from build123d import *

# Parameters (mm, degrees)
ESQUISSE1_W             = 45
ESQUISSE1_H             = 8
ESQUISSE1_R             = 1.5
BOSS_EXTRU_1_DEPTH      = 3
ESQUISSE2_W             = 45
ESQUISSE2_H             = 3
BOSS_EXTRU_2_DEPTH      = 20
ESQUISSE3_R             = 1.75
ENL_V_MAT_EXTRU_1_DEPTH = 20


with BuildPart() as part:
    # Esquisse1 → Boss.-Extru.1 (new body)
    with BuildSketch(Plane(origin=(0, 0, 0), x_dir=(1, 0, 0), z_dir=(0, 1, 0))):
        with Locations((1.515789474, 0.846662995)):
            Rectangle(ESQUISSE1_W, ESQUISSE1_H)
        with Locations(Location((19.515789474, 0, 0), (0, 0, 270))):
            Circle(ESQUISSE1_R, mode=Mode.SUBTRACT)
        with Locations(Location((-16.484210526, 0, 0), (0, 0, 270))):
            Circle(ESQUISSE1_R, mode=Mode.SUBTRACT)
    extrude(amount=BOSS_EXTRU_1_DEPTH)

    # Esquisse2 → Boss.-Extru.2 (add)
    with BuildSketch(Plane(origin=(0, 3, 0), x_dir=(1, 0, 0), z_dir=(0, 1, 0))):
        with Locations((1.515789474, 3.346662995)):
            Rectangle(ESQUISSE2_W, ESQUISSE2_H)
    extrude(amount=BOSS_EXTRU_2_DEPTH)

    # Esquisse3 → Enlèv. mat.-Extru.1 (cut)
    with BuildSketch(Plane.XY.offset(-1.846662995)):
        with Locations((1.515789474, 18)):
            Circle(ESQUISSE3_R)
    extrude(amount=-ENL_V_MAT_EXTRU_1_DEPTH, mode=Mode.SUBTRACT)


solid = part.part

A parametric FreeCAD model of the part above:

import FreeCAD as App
import Part
import Sketcher
Q = App.Units.Quantity

doc = App.newDocument("Part")
params = doc.addObject("Spreadsheet::Sheet", "Params")
for row, (alias, value) in enumerate([
    ("sketch1_diameter", "3 mm"),
    ("sketch1_width", "45 mm"),
    ("sketch1_height", "8 mm"),
    ("pad1_length", "3 mm"),
    ("sketch2_width", "45 mm"),
    ("sketch2_height", "3 mm"),
    ("pad2_length", "20 mm"),
    ("sketch3_diameter", "3.5 mm"),
    ("pocket1_length", "20 mm"),
], start=1):
    params.set(f"A{row}", alias)
    params.set(f"B{row}", "=" + value)
    params.setAlias(f"B{row}", alias)

body = doc.addObject("PartDesign::Body", "Body")

sketch1 = body.newObject("Sketcher::SketchObject", "Sketch")
sketch1.AttachmentSupport = (doc.getObject("XZ_Plane"), [""])
sketch1.MapMode = "FlatFace"
sketch1.addGeometry([
    Part.LineSegment(App.Vector(-20.984211, -4.846663, 0), App.Vector(-20.984211, 3.153337, 0)),
    Part.LineSegment(App.Vector(-20.984211, 3.153337, 0), App.Vector(24.015789, 3.153337, 0)),
    Part.LineSegment(App.Vector(24.015789, 3.153337, 0), App.Vector(24.015789, -4.846663, 0)),
    Part.LineSegment(App.Vector(24.015789, -4.846663, 0), App.Vector(-20.984211, -4.846663, 0)),
    Part.Circle(App.Vector(-16.484211, 0, 0), App.Vector(0, 0, 1), 1.5),
    Part.Circle(App.Vector(19.515789, 0, 0), App.Vector(0, 0, 1), 1.5),
], False)
sketch1.addConstraint([
    Sketcher.Constraint("Coincident", 0, 2, 1, 1),
    Sketcher.Constraint("Coincident", 1, 2, 2, 1),
    Sketcher.Constraint("Coincident", 2, 2, 3, 1),
    Sketcher.Constraint("Coincident", 3, 2, 0, 1),
    Sketcher.Constraint("Vertical", 0),
    Sketcher.Constraint("Horizontal", 1),
    Sketcher.Constraint("Vertical", 2),
    Sketcher.Constraint("Horizontal", 3),
    Sketcher.Constraint("Equal", 4, 5),
    Sketcher.Constraint("PointOnObject", 4, 3, -1),
    Sketcher.Constraint("PointOnObject", 5, 3, -1),
    Sketcher.Constraint("Diameter", 4, Q("3 mm")),
    Sketcher.Constraint("DistanceX", 1, 1, 1, 2, Q("45 mm")),
    Sketcher.Constraint("DistanceY", 0, 1, 0, 2, Q("8 mm")),
    Sketcher.Constraint("DistanceX", 4, 3, 5, 3, Q("36 mm")),
    Sketcher.Constraint("DistanceX", 0, 2, 4, 3, Q("4.5 mm")),
    Sketcher.Constraint("DistanceX", 4, 3, -1, 1, Q("16.484211 mm")),
    Sketcher.Constraint("DistanceY", -1, 1, 0, 2, Q("3.153337 mm")),
])
sketch1.setExpression("Constraints[11]", "Params.sketch1_diameter")
sketch1.setExpression("Constraints[12]", "Params.sketch1_width")
sketch1.setExpression("Constraints[13]", "Params.sketch1_height")
pad1 = body.newObject("PartDesign::Pad", "Pad")
pad1.Profile = sketch1
pad1.setExpression("Length", "Params.pad1_length")
pad1.Reversed = True

sketch2 = body.newObject("Sketcher::SketchObject", "Sketch001")
sketch2.AttachmentSupport = (doc.getObject("XZ_Plane"), [""])
sketch2.MapMode = "FlatFace"
sketch2.AttachmentOffset = App.Placement(App.Vector(0, 0, -3), App.Rotation())
sketch2.addGeometry([
    Part.LineSegment(App.Vector(-20.984211, -4.846663, 0), App.Vector(-20.984211, -1.846663, 0)),
    Part.LineSegment(App.Vector(-20.984211, -1.846663, 0), App.Vector(24.015789, -1.846663, 0)),
    Part.LineSegment(App.Vector(24.015789, -1.846663, 0), App.Vector(24.015789, -4.846663, 0)),
    Part.LineSegment(App.Vector(24.015789, -4.846663, 0), App.Vector(-20.984211, -4.846663, 0)),
], False)
sketch2.addConstraint([
    Sketcher.Constraint("Coincident", 0, 2, 1, 1),
    Sketcher.Constraint("Coincident", 1, 2, 2, 1),
    Sketcher.Constraint("Coincident", 2, 2, 3, 1),
    Sketcher.Constraint("Coincident", 3, 2, 0, 1),
    Sketcher.Constraint("Vertical", 0),
    Sketcher.Constraint("Horizontal", 1),
    Sketcher.Constraint("Vertical", 2),
    Sketcher.Constraint("Horizontal", 3),
    Sketcher.Constraint("DistanceX", 1, 1, 1, 2, Q("45 mm")),
    Sketcher.Constraint("DistanceY", 0, 1, 0, 2, Q("3 mm")),
    Sketcher.Constraint("DistanceX", 0, 2, -1, 1, Q("20.984211 mm")),
    Sketcher.Constraint("DistanceY", 0, 2, -1, 1, Q("1.846663 mm")),
])
sketch2.setExpression("Constraints[8]", "Params.sketch2_width")
sketch2.setExpression("Constraints[9]", "Params.sketch2_height")
pad2 = body.newObject("PartDesign::Pad", "Pad001")
pad2.Profile = sketch2
pad2.setExpression("Length", "Params.pad2_length")
pad2.Reversed = True

sketch3 = body.newObject("Sketcher::SketchObject", "Sketch002")
sketch3.AttachmentSupport = (doc.getObject("XY_Plane"), [""])
sketch3.MapMode = "FlatFace"
sketch3.AttachmentOffset = App.Placement(App.Vector(0, 0, -1.846663), App.Rotation())
sketch3.addGeometry(Part.Circle(App.Vector(1.515789, 18, 0), App.Vector(0, 0, 1), 1.75), False)
sketch3.addConstraint([
    Sketcher.Constraint("Diameter", 0, Q("3.5 mm")),
    Sketcher.Constraint("DistanceY", -1, 1, 0, 3, Q("18 mm")),
    Sketcher.Constraint("DistanceX", -1, 1, 0, 3, Q("1.515789 mm")),
])
sketch3.setExpression("Constraints[0]", "Params.sketch3_diameter")
pocket1 = body.newObject("PartDesign::Pocket", "Pocket")
pocket1.Profile = sketch3
pocket1.setExpression("Length", "Params.pocket1_length")

doc.recompute()
